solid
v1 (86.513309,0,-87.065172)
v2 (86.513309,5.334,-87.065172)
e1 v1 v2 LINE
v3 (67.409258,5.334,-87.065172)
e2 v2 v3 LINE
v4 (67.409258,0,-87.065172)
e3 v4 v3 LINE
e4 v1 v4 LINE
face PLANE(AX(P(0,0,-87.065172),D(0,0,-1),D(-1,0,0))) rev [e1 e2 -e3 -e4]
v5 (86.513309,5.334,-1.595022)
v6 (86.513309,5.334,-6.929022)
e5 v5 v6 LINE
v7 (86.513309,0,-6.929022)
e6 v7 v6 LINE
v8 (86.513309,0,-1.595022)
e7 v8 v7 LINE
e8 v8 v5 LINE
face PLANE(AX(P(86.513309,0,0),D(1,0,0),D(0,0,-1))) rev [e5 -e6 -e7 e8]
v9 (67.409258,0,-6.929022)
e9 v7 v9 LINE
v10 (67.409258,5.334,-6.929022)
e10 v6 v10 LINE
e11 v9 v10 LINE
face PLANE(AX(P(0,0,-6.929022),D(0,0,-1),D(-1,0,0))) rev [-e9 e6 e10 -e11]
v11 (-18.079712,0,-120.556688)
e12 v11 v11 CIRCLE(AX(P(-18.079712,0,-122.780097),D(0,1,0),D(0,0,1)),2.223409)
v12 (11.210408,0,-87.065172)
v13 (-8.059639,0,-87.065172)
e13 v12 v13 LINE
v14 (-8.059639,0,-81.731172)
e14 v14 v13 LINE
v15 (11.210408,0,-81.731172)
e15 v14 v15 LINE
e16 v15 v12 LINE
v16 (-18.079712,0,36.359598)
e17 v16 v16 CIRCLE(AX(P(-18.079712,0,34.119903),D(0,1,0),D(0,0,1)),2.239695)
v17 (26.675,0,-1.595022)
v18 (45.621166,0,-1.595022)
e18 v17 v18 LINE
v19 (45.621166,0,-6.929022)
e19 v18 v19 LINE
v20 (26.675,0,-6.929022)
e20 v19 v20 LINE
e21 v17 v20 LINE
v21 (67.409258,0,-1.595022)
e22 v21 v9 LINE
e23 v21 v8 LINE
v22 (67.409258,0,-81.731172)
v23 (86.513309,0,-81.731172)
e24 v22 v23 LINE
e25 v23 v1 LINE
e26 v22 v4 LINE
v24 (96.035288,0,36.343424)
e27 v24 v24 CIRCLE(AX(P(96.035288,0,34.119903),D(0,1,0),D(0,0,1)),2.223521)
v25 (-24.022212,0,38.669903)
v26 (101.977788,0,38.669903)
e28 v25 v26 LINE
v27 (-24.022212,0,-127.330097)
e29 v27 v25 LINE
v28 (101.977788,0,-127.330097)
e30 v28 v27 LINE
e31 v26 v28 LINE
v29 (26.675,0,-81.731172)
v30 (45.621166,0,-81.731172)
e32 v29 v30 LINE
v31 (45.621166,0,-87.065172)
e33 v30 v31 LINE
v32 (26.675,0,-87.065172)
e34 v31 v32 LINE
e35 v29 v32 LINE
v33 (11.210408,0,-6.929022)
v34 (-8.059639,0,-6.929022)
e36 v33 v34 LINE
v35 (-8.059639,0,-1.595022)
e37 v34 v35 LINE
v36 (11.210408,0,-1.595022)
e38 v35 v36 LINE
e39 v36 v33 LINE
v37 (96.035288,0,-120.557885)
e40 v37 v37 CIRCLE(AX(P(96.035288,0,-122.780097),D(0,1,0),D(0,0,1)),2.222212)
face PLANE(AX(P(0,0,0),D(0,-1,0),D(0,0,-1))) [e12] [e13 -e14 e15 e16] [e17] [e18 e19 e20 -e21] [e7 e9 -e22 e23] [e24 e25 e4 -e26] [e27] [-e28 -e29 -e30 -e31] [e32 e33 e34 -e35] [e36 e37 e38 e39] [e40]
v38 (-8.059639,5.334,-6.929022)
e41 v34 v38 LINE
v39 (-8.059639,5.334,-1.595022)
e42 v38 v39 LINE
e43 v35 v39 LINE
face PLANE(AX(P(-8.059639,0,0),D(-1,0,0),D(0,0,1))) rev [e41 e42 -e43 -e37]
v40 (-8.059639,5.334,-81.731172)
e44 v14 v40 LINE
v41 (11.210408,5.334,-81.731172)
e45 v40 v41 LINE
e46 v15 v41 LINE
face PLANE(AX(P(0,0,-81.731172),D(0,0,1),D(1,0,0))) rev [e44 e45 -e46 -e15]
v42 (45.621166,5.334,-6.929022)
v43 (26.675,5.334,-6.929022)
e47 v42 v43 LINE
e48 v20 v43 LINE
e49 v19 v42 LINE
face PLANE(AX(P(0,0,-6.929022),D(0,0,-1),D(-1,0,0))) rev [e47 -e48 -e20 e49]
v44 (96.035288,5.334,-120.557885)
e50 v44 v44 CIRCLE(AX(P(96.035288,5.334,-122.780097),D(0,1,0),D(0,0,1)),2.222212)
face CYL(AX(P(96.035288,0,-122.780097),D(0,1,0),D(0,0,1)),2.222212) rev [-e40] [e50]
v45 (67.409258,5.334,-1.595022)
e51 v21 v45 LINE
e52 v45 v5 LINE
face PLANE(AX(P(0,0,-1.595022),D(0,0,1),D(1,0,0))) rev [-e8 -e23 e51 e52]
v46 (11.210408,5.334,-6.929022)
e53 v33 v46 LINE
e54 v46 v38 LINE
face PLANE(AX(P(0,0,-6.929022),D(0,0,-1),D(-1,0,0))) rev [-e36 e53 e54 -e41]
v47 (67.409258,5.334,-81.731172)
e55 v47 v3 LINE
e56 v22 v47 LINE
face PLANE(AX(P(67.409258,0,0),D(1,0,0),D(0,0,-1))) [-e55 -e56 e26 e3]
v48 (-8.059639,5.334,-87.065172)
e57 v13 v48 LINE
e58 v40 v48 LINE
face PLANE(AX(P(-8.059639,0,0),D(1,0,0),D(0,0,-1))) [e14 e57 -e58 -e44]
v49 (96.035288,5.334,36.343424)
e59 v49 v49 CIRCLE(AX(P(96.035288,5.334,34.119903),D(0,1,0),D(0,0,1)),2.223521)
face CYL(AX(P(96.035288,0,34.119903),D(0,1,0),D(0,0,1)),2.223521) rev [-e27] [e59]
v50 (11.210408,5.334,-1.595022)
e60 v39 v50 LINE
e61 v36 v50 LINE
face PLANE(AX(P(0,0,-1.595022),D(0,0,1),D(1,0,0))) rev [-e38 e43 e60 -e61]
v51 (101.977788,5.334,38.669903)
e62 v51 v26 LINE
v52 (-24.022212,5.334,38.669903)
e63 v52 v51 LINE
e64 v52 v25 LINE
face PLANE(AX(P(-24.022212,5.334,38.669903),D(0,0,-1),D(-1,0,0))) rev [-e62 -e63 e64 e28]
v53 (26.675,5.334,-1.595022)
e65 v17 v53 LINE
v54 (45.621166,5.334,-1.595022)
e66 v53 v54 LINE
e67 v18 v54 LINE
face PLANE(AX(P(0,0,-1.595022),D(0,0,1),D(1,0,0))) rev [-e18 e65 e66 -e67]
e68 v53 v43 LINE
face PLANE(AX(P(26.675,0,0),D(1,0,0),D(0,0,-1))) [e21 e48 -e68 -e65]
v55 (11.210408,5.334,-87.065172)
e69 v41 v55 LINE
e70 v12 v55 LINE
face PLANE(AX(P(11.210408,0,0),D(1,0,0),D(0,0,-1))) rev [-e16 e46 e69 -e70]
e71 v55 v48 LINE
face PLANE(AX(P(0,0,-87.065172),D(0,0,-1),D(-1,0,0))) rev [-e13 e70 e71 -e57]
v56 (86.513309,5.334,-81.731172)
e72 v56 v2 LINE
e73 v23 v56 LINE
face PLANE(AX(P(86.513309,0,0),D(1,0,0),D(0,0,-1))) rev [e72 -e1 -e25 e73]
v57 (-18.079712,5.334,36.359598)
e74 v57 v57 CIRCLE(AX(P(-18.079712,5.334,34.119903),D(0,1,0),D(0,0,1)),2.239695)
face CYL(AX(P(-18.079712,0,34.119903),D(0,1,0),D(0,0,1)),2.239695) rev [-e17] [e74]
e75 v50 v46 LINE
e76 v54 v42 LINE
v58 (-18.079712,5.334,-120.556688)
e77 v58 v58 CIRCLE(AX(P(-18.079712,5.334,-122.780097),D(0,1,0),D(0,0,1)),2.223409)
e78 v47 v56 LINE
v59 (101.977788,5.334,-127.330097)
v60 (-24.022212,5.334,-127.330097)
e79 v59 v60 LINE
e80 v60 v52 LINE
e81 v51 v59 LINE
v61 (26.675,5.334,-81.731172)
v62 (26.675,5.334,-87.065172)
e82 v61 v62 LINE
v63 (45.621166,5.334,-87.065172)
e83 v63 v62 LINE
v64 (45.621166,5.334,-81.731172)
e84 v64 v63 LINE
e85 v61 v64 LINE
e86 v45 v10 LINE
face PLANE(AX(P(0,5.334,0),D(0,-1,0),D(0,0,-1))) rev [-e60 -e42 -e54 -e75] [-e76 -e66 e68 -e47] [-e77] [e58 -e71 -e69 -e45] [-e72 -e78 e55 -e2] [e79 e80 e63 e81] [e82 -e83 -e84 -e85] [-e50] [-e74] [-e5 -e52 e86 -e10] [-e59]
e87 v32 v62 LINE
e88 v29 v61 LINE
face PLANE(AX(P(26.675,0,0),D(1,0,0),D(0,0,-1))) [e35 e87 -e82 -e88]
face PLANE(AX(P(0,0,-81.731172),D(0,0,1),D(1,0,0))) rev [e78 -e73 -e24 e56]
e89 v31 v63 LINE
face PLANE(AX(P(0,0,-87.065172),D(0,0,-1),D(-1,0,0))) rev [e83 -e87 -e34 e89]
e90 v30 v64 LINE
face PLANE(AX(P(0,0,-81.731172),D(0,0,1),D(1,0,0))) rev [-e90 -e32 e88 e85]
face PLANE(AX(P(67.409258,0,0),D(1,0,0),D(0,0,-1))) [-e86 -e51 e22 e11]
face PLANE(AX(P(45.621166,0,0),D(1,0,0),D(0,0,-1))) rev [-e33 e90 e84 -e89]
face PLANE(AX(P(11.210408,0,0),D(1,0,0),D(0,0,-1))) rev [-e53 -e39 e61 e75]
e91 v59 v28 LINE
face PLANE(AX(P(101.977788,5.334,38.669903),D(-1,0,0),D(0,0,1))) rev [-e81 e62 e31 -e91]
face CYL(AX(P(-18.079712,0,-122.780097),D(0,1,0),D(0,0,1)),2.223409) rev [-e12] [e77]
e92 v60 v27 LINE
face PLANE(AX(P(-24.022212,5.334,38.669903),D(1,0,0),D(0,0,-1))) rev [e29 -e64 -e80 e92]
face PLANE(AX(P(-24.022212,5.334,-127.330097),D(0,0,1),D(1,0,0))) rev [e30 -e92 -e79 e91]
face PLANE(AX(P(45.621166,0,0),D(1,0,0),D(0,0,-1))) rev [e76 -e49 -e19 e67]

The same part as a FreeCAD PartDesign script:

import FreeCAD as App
import Part
import Sketcher

V = App.Vector
Q = App.Units.Quantity

doc = App.newDocument("Part")
params = doc.addObject("Spreadsheet::Sheet", "Params")
for row, (alias, value) in enumerate([
    ("sketch1_width", "126 mm"),
    ("sketch1_height", "166 mm"),
    ("pad1_length", "5.334 mm"),
], start=1):
    params.set(f"A{row}", alias)
    params.set(f"B{row}", "=" + value)
    params.setAlias(f"B{row}", alias)

body = doc.addObject("PartDesign::Body", "Body")

# Sketch on XZ plane
sketch1 = body.newObject("Sketcher::SketchObject", "Sketch")
sketch1.AttachmentSupport = (doc.getObject("XZ_Plane"), [""])
sketch1.MapMode = "FlatFace"
sketch1.addGeometry(Part.LineSegment(V(-24, -127, 0), V(-24, 39, 0)), False)
sketch1.addGeometry(Part.LineSegment(V(-24, 39, 0), V(102, 39, 0)), False)
sketch1.addGeometry(Part.LineSegment(V(102, 39, 0), V(102, -127, 0)), False)
sketch1.addGeometry(Part.LineSegment(V(102, -127, 0), V(-24, -127, 0)), False)
sketch1.addConstraint(Sketcher.Constraint("Coincident", 0, 2, 1, 1))
sketch1.addConstraint(Sketcher.Constraint("Coincident", 1, 2, 2, 1))
sketch1.addConstraint(Sketcher.Constraint("Coincident", 2, 2, 3, 1))
sketch1.addConstraint(Sketcher.Constraint("Coincident", 3, 2, 0, 1))
sketch1.addConstraint(Sketcher.Constraint("Vertical", 0))
sketch1.addConstraint(Sketcher.Constraint("Horizontal", 1))
sketch1.addConstraint(Sketcher.Constraint("Vertical", 2))
sketch1.addConstraint(Sketcher.Constraint("Horizontal", 3))
sketch1.addConstraint(Sketcher.Constraint("DistanceX", 1, 1, 1, 2, Q("126 mm")))
sketch1.addConstraint(Sketcher.Constraint("DistanceY", 0, 1, 0, 2, Q("166 mm")))
sketch1.addConstraint(Sketcher.Constraint("DistanceX", 0, 2, -1, 1, Q("24.022212 mm")))
sketch1.addConstraint(Sketcher.Constraint("DistanceY", -1, 1, 0, 2, Q("38.669903 mm")))
sketch1.setExpression("Constraints[8]", "Params.sketch1_width")
sketch1.setExpression("Constraints[9]", "Params.sketch1_height")
pad1 = body.newObject("PartDesign::Pad", "Pad")
pad1.Profile = sketch1
pad1.setExpression("Length", "Params.pad1_length")
pad1.Reversed = True

# Sketch on XZ plane
sketch2 = body.newObject("Sketcher::SketchObject", "Sketch001")
sketch2.AttachmentSupport = (doc.getObject("XZ_Plane"), [""])
sketch2.MapMode = "FlatFace"
sketch2.AttachmentOffset = App.Placement(V(0, 0, -5.334), App.Rotation())
sketch2.addGeometry(Part.LineSegment(V(-8, -7, 0), V(-8, -2, 0)), False)
sketch2.addGeometry(Part.LineSegment(V(-8, -2, 0), V(11, -2, 0)), False)
sketch2.addGeometry(Part.LineSegment(V(11, -2, 0), V(11, -7, 0)), False)
sketch2.addGeometry(Part.LineSegment(V(11, -7, 0), V(-8, -7, 0)), False)
sketch2.addGeometry(Part.LineSegment(V(-8, -87, 0), V(-8, -82, 0)), False)
sketch2.addGeometry(Part.LineSegment(V(-8, -82, 0), V(11, -82, 0)), False)
sketch2.addGeometry(Part.LineSegment(V(11, -82, 0), V(11, -87, 0)), False)
sketch2.addGeometry(Part.LineSegment(V(11, -87, 0), V(-8, -87, 0)), False)
sketch2.addGeometry(Part.LineSegment(V(27, -87, 0), V(27, -82, 0)), False)
sketch2.addGeometry(Part.LineSegment(V(27, -82, 0), V(46, -82, 0)), False)
sketch2.addGeometry(Part.LineSegment(V(46, -82, 0), V(46, -87, 0)), False)
sketch2.addGeometry(Part.LineSegment(V(46, -87, 0), V(27, -87, 0)), False)
sketch2.addGeometry(Part.LineSegment(V(67, -87, 0), V(67, -82, 0)), False)
sketch2.addGeometry(Part.LineSegment(V(67, -82, 0), V(87, -82, 0)), False)
sketch2.addGeometry(Part.LineSegment(V(87, -82, 0), V(87, -87, 0)), False)
sketch2.addGeometry(Part.LineSegment(V(87, -87, 0), V(67, -87, 0)), False)
sketch2.addGeometry(Part.LineSegment(V(67, -7, 0), V(67, -2, 0)), False)
sketch2.addGeometry(Part.LineSegment(V(67, -2, 0), V(87, -2, 0)), False)
sketch2.addGeometry(Part.LineSegment(V(87, -2, 0), V(87, -7, 0)), False)
sketch2.addGeometry(Part.LineSegment(V(87, -7, 0), V(67, -7, 0)), False)
sketch2.addGeometry(Part.LineSegment(V(27, -7, 0), V(27, -2, 0)), False)
sketch2.addGeometry(Part.LineSegment(V(27, -2, 0), V(46, -2, 0)), False)
sketch2.addGeometry(Part.LineSegment(V(46, -2, 0), V(46, -7, 0)), False)
sketch2.addGeometry(Part.LineSegment(V(46, -7, 0), V(27, -7, 0)), False)
sketch2.addConstraint(Sketcher.Constraint("Coincident", 0, 2, 1, 1))
sketch2.addConstraint(Sketcher.Constraint("Coincident", 1, 2, 2, 1))
sketch2.addConstraint(Sketcher.Constraint("Coincident", 2, 2, 3, 1))
sketch2.addConstraint(Sketcher.Constraint("Coincident", 3, 2, 0, 1))
sketch2.addConstraint(Sketcher.Constraint("Coincident", 4, 2, 5, 1))
sketch2.addConstraint(Sketcher.Constraint("Coincident", 5, 2, 6, 1))
sketch2.addConstraint(Sketcher.Constraint("Coincident", 6, 2, 7, 1))
sketch2.addConstraint(Sketcher.Constraint("Coincident", 7, 2, 4, 1))
sketch2.addConstraint(Sketcher.Constraint("Coincident", 8, 2, 9, 1))
sketch2.addConstraint(Sketcher.Constraint("Coincident", 9, 2, 10, 1))
sketch2.addConstraint(Sketcher.Constraint("Coincident", 10, 2, 11, 1))
sketch2.addConstraint(Sketcher.Constraint("Coincident", 11, 2, 8, 1))
sketch2.addConstraint(Sketcher.Constraint("Coincident", 12, 2, 13, 1))
sketch2.addConstraint(Sketcher.Constraint("Coincident", 13, 2, 14, 1))
sketch2.addConstraint(Sketcher.Constraint("Coincident", 14, 2, 15, 1))
sketch2.addConstraint(Sketcher.Constraint("Coincident", 15, 2, 12, 1))
sketch2.addConstraint(Sketcher.Constraint("Coincident", 16, 2, 17, 1))
sketch2.addConstraint(Sketcher.Constraint("Coincident", 17, 2, 18, 1))
sketch2.addConstraint(Sketcher.Constraint("Coincident", 18, 2, 19, 1))
sketch2.addConstraint(Sketcher.Constraint("Coincident", 19, 2, 16, 1))
sketch2.addConstraint(Sketcher.Constraint("Coincident", 20, 2, 21, 1))
sketch2.addConstraint(Sketcher.Constraint("Coincident", 21, 2, 22, 1))
sketch2.addConstraint(Sketcher.Constraint("Coincident", 22, 2, 23, 1))
sketch2.addConstraint(Sketcher.Constraint("Coincident", 23, 2, 20, 1))
sketch2.addConstraint(Sketcher.Constraint("Vertical", 0))
sketch2.addConstraint(Sketcher.Constraint("Horizontal", 1))
sketch2.addConstraint(Sketcher.Constraint("Vertical", 2))
sketch2.addConstraint(Sketcher.Constraint("Horizontal", 3))
sketch2.addConstraint(Sketcher.Constraint("Vertical", 4))
sketch2.addConstraint(Sketcher.Constraint("Horizontal", 5))
sketch2.addConstraint(Sketcher.Constraint("Vertical", 6))
sketch2.addConstraint(Sketcher.Constraint("Horizontal", 7))
sketch2.addConstraint(Sketcher.Constraint("Vertical", 8))
sketch2.addConstraint(Sketcher.Constraint("Horizontal", 9))
sketch2.addConstraint(Sketcher.Constraint("Vertical", 10))
sketch2.addConstraint(Sketcher.Constraint("Horizontal", 11))
sketch2.addConstraint(Sketcher.Constraint("Vertical", 12))
sketch2.addConstraint(Sketcher.Constraint("Horizontal", 13))
sketch2.addConstraint(Sketcher.Constraint("Vertical", 14))
sketch2.addConstraint(Sketcher.Constraint("Horizontal", 15))
sketch2.addConstraint(Sketcher.Constraint("Vertical", 16))
sketch2.addConstraint(Sketcher.Constraint("Horizontal", 17))
sketch2.addConstraint(Sketcher.Constraint("Vertical", 18))
sketch2.addConstraint(Sketcher.Constraint("Horizontal", 19))
sketch2.addConstraint(Sketcher.Constraint("Vertical", 20))
sketch2.addConstraint(Sketcher.Constraint("Horizontal", 21))
sketch2.addConstraint(Sketcher.Constraint("Vertical", 22))
sketch2.addConstraint(Sketcher.Constraint("Horizontal", 23))
sketch2.addConstraint(Sketcher.Constraint("Horizontal", 5, 2, 8, 2))
sketch2.addConstraint(Sketcher.Constraint("Horizontal", 7, 2, 10, 2))
sketch2.addConstraint(Sketcher.Constraint("Horizontal", 9, 2, 12, 2))
sketch2.addConstraint(Sketcher.Constraint("Horizontal", 11, 2, 14, 2))
sketch2.addConstraint(Sketcher.Constraint("Horizontal", 1, 2, 16, 2))
sketch2.addConstraint(Sketcher.Constraint("Horizontal", 3, 2, 18, 2))
sketch2.addConstraint(Sketcher.Constraint("Horizontal", 17, 2, 20, 2))
sketch2.addConstraint(Sketcher.Constraint("Horizontal", 19, 2, 22, 2))
sketch2.addConstraint(Sketcher.Constraint("Vertical", 3, 2, 4, 2))
sketch2.addConstraint(Sketcher.Constraint("Vertical", 2, 2, 5, 2))
sketch2.addConstraint(Sketcher.Constraint("Vertical", 15, 2, 16, 2))
sketch2.addConstraint(Sketcher.Constraint("Vertical", 14, 2, 17, 2))
sketch2.addConstraint(Sketcher.Constraint("Vertical", 11, 2, 20, 2))
sketch2.addConstraint(Sketcher.Constraint("Vertical", 10, 2, 21, 2))
sketch2.addConstraint(Sketcher.Constraint("Equal", 2, 4))
sketch2.addConstraint(Sketcher.Constraint("DistanceY", 0, 1, 0, 2, Q("5.334 mm")))
sketch2.addConstraint(Sketcher.Constraint("DistanceX", -1, 1, 8, 2, Q("26.675 mm")))
sketch2.addConstraint(Sketcher.Constraint("DistanceX", 13, 1, 13, 2, Q("19.104051 mm")))
sketch2.addConstraint(Sketcher.Constraint("DistanceX", 1, 2, 17, 2, Q("75.302902 mm")))
sketch2.addConstraint(Sketcher.Constraint("DistanceX", 1, 1, 1, 2, Q("19.270047 mm")))
sketch2.addConstraint(Sketcher.Constraint("DistanceX", 9, 1, 9, 2, Q("18.946167 mm")))
sketch2.addConstraint(Sketcher.Constraint("DistanceX", 0, 2, -1, 1, Q("8.059639 mm")))
sketch2.addConstraint(Sketcher.Constraint("DistanceY", 4, 2, -1, 1, Q("81.731172 mm")))
sketch2.addConstraint(Sketcher.Constraint("DistanceY", 4, 2, 3, 2, Q("74.802149 mm")))
pocket1 = body.newObject("PartDesign::Pocket", "Pocket")
pocket1.Profile = sketch2
pocket1.Type = "ThroughAll"
pocket1.Reversed = True

# Sketch on XZ plane
sketch3 = body.newObject("Sketcher::SketchObject", "Sketch002")
sketch3.AttachmentSupport = (doc.getObject("XZ_Plane"), [""])
sketch3.MapMode = "FlatFace"
sketch3.AttachmentOffset = App.Placement(V(0, 0, -5.334), App.Rotation())
sketch3.addGeometry(Part.Circle(V(96, 34.1, 0), V(0, 0, 1), 2.2), False)
sketch3.addGeometry(Part.Circle(V(96, -122.8, 0), V(0, 0, 1), 2.2), False)
sketch3.addGeometry(Part.Circle(V(-18.1, -122.8, 0), V(0, 0, 1), 2.2), False)
sketch3.addGeometry(Part.Circle(V(-18.1, 34.1, 0), V(0, 0, 1), 2.2), False)
sketch3.addConstraint(Sketcher.Constraint("Horizontal", 1, 3, 2, 3))
sketch3.addConstraint(Sketcher.Constraint("Horizontal", 0, 3, 3, 3))
sketch3.addConstraint(Sketcher.Constraint("Vertical", 0, 3, 1, 3))
sketch3.addConstraint(Sketcher.Constraint("Vertical", 2, 3, 3, 3))
sketch3.addConstraint(Sketcher.Constraint("DistanceY", 1, 3, 0, 3, Q("156.9 mm")))
sketch3.addConstraint(Sketcher.Constraint("Diameter", 2, Q("4.446819 mm")))
sketch3.addConstraint(Sketcher.Constraint("Diameter", 3, Q("4.479391 mm")))
sketch3.addConstraint(Sketcher.Constraint("Diameter", 0, Q("4.447043 mm")))
sketch3.addConstraint(Sketcher.Constraint("Diameter", 1, Q("4.444425 mm")))
sketch3.addConstraint(Sketcher.Constraint("DistanceX", 2, 3, 1, 3, Q("114.115 mm")))
sketch3.addConstraint(Sketcher.Constraint("DistanceX", -1, 1, 0, 3, Q("96.035288 mm")))
sketch3.addConstraint(Sketcher.Constraint("DistanceY", -1, 1, 0, 3, Q("34.119903 mm")))
pocket2 = body.newObject("PartDesign::Pocket", "Pocket001")
pocket2.Profile = sketch3
pocket2.Type = "ThroughAll"
pocket2.Reversed = True

doc.recompute()
